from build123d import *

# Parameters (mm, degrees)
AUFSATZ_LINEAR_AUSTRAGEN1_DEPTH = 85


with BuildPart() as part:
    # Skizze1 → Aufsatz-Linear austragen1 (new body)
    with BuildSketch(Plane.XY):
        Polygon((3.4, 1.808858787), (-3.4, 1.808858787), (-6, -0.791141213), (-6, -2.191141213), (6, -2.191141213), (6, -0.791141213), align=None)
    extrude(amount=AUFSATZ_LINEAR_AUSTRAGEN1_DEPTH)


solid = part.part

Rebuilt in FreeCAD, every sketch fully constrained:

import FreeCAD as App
import Part
import Sketcher

doc = App.newDocument("Part")
body = doc.addObject("PartDesign::Body", "Body")

# Sketch on XY plane
sketch1 = doc.addObject("Sketcher::SketchObject", "Sketch")
body.addObject(sketch1)
sketch1.AttachmentSupport = (doc.XY_Plane, [""])
sketch1.MapMode = "FlatFace"
sketch1.addGeometry([
    Part.LineSegment(App.Vector(3.4, 1.8, 0), App.Vector(-3.4, 1.8, 0)),  # 0
    Part.LineSegment(App.Vector(-3.4, 1.8, 0), App.Vector(-6, -0.8, 0)),  # 1
    Part.LineSegment(App.Vector(-6, -0.8, 0), App.Vector(-6, -2.2, 0)),  # 2
    Part.LineSegment(App.Vector(-6, -2.2, 0), App.Vector(6, -2.2, 0)),  # 3
    Part.LineSegment(App.Vector(6, -2.2, 0), App.Vector(6, -0.8, 0)),  # 4
    Part.LineSegment(App.Vector(6, -0.8, 0), App.Vector(3.4, 1.8, 0)),  # 5
], False)
sketch1.addConstraint([
    Sketcher.Constraint("Coincident", 0, 2, 1, 1),
    Sketcher.Constraint("Coincident", 1, 2, 2, 1),
    Sketcher.Constraint("Coincident", 2, 2, 3, 1),
    Sketcher.Constraint("Coincident", 3, 2, 4, 1),
    Sketcher.Constraint("Coincident", 4, 2, 5, 1),
    Sketcher.Constraint("Coincident", 5, 2, 0, 1),
    Sketcher.Constraint("Horizontal", 0),
    Sketcher.Constraint("Vertical", 2),
    Sketcher.Constraint("Horizontal", 3),
    Sketcher.Constraint("Vertical", 4),
    Sketcher.Constraint("Symmetric", 1, 2, 4, 2, -2),
    Sketcher.Constraint("Perpendicular", 1, 5),
    Sketcher.Constraint("Equal", 1, 5),
    Sketcher.Constraint("DistanceX", 3, 1, 3, 2, 12.0),
    Sketcher.Constraint("DistanceX", 0, 2, 0, 1, 6.8),
    Sketcher.Constraint("DistanceY", 2, 2, 2, 1, 1.4),
    Sketcher.Constraint("DistanceY", -1, 1, 0, 2, 1.808859),
])
pad1 = doc.addObject("PartDesign::Pad", "Pad")
body.addObject(pad1)
pad1.Profile = sketch1
pad1.Length = 85

doc.recompute()
